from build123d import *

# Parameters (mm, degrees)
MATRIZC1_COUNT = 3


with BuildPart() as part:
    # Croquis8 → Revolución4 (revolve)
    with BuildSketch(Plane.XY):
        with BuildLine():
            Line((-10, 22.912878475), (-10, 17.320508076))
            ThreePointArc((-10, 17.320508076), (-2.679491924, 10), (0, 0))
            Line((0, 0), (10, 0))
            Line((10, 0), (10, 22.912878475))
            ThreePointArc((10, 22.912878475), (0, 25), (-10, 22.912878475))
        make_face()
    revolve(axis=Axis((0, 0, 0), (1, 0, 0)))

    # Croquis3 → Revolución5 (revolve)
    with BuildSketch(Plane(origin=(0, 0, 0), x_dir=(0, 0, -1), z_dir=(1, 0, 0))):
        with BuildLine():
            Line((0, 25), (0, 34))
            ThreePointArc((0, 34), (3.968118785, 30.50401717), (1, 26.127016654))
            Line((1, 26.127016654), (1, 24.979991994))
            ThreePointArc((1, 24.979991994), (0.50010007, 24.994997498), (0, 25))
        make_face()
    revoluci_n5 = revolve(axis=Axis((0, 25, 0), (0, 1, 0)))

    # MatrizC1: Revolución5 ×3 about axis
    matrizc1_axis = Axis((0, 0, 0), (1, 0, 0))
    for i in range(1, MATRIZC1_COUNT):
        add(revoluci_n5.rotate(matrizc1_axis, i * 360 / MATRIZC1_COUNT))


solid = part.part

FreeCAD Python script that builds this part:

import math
import FreeCAD as App
import Part
import Sketcher

V = App.Vector
Q = App.Units.Quantity

doc = App.newDocument("Part")
params = doc.addObject("Spreadsheet::Sheet", "Params")
for row, (alias, value) in enumerate([
    ("sketch1_radius", "20 mm"),
    ("sketch1_radius2", "25 mm"),
    ("sketch1_width", "10 mm"),
    ("revolution_angle", "360 deg"),
    ("sketch2_radius", "25.000001 mm"),
    ("sketch2_radius2", "4 mm"),
    ("sketch2_width", "9 mm"),
    ("revolution2_angle", "360 deg"),
], start=1):
    params.set(f"A{row}", alias)
    params.set(f"B{row}", "=" + value)
    params.setAlias(f"B{row}", alias)

body = doc.addObject("PartDesign::Body", "Body")

sketch1 = body.newObject("Sketcher::SketchObject", "Sketch")
sketch1.AttachmentSupport = (doc.getObject("XY_Plane"), [""])
sketch1.MapMode = "FlatFace"
sketch1.addGeometry([
    Part.LineSegment(V(-10, 23, 0), V(-10, 17, 0)),
    Part.ArcOfCircle(Part.Circle(V(-20, 0, 0), V(0, 0, 1), 20), math.radians(0), math.radians(60)),
    Part.LineSegment(V(0, 0, 0), V(10, 0, 0)),
    Part.LineSegment(V(10, 0, 0), V(10, 23, 0)),
    Part.ArcOfCircle(Part.Circle(V(0, 0, 0), V(0, 0, 1), 25), math.radians(66), math.radians(114)),
], False)
sketch1.addConstraint([
    Sketcher.Constraint("Coincident", 0, 2, 1, 2),
    Sketcher.Constraint("Coincident", 1, 1, 2, 1),
    Sketcher.Constraint("Coincident", 2, 2, 3, 1),
    Sketcher.Constraint("Coincident", 3, 2, 4, 1),
    Sketcher.Constraint("Coincident", 4, 2, 0, 1),
    Sketcher.Constraint("Vertical", 0),
    Sketcher.Constraint("Horizontal", 2),
    Sketcher.Constraint("Vertical", 3),
    Sketcher.Constraint("Coincident", 4, 3, -1, 1),
    Sketcher.Constraint("Coincident", 1, 1, -1, 1),
    Sketcher.Constraint("PointOnObject", 1, 3, -1),
    Sketcher.Constraint("Horizontal", 3, 2, 4, 2),
    Sketcher.Constraint("Radius", 1, Q("20 mm")),
    Sketcher.Constraint("Radius", 4, Q("25 mm")),
    Sketcher.Constraint("DistanceX", 2, 1, 2, 2, Q("10 mm")),
])
sketch1.setExpression("Constraints[12]", "Params.sketch1_radius")
sketch1.setExpression("Constraints[13]", "Params.sketch1_radius2")
sketch1.setExpression("Constraints[14]", "Params.sketch1_width")
revolution = body.newObject("PartDesign::Revolution", "Revolution")
revolution.Profile = sketch1
revolution.ReferenceAxis = (sketch1, ["H_Axis"])
revolution.setExpression("Angle", "Params.revolution_angle")

sketch2 = body.newObject("Sketcher::SketchObject", "Sketch001")
sketch2.AttachmentSupport = (doc.getObject("YZ_Plane"), [""])
sketch2.MapMode = "FlatFace"
sketch2.addGeometry([
    Part.LineSegment(V(34, 0, 0), V(25, 0, 0)),
    Part.ArcOfCircle(Part.Circle(V(0, 0, 0), V(0, 0, 1), 25), math.radians(-2.29), math.radians(0)),
    Part.LineSegment(V(25, -1, 0), V(26.1, -1, 0)),
    Part.ArcOfCircle(Part.Circle(V(30, 0, 0), V(0, 0, 1), 4), math.radians(-166), math.radians(0)),
], False)
sketch2.addConstraint([
    Sketcher.Constraint("Coincident", 0, 2, 1, 2),
    Sketcher.Constraint("Coincident", 1, 1, 2, 1),
    Sketcher.Constraint("Coincident", 2, 2, 3, 1),
    Sketcher.Constraint("Coincident", 3, 2, 0, 1),
    Sketcher.Constraint("Horizontal", 0),
    Sketcher.Constraint("Horizontal", 2),
    Sketcher.Constraint("Coincident", 1, 3, -1, 1),
    Sketcher.Constraint("PointOnObject", 3, 3, -1),
    Sketcher.Constraint("PointOnObject", 0, 2, -1),
    Sketcher.Constraint("Radius", 1, Q("25.000001 mm")),
    Sketcher.Constraint("Radius", 3, Q("4 mm")),
    Sketcher.Constraint("DistanceX", 0, 2, 0, 1, Q("9 mm")),
    Sketcher.Constraint("DistanceY", 1, 1, -1, 1, Q("1 mm")),
])
sketch2.setExpression("Constraints[9]", "Params.sketch2_radius")
sketch2.setExpression("Constraints[10]", "Params.sketch2_radius2")
sketch2.setExpression("Constraints[11]", "Params.sketch2_width")
revolution2 = body.newObject("PartDesign::Revolution", "Revolution001")
revolution2.Profile = sketch2
revolution2.ReferenceAxis = (sketch2, ["H_Axis"])
revolution2.setExpression("Angle", "Params.revolution2_angle")
doc.recompute()

polarpattern = body.newObject("PartDesign::PolarPattern", "PolarPattern")
polarpattern.Originals = [revolution2]
polarpattern.Axis = (doc.getObject("X_Axis"), [""])
polarpattern.Angle = 360
polarpattern.Occurrences = 3
body.Tip = polarpattern

doc.recompute()
